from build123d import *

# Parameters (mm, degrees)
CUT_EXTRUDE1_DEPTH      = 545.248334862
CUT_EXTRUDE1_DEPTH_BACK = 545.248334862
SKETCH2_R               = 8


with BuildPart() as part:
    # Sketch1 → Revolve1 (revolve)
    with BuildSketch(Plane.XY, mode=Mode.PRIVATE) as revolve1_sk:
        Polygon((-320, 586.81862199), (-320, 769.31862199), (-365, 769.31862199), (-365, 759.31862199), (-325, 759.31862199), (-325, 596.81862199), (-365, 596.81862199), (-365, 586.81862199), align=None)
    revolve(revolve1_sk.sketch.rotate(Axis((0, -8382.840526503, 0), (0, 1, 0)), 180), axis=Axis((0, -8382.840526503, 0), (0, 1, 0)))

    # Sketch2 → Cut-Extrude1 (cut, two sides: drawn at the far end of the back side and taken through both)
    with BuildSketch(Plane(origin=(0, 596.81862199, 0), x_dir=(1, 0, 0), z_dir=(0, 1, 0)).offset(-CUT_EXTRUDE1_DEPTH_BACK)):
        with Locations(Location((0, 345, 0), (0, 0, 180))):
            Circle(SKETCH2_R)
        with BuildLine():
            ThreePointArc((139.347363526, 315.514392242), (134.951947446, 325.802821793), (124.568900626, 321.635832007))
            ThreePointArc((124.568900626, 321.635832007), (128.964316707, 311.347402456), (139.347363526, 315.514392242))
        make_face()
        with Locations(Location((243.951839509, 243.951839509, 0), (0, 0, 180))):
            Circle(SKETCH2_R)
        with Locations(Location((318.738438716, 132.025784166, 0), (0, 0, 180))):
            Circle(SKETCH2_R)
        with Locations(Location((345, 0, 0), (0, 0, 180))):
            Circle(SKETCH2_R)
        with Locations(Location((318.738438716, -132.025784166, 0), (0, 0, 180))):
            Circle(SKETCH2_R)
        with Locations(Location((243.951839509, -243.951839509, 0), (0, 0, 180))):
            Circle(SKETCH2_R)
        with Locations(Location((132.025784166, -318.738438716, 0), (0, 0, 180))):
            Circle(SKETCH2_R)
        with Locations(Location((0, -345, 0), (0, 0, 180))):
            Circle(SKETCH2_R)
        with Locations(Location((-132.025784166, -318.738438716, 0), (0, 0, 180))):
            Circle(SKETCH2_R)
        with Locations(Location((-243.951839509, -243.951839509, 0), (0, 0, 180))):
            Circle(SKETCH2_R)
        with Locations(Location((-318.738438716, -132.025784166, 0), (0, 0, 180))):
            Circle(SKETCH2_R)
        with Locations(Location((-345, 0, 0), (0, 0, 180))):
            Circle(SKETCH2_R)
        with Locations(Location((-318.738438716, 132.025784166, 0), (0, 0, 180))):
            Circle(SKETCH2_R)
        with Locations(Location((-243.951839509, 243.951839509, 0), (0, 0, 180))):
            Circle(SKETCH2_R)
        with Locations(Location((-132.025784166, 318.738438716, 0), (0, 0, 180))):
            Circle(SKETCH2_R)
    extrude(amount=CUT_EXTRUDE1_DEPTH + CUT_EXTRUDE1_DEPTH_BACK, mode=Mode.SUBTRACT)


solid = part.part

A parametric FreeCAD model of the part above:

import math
import FreeCAD as App
import Part
import Sketcher

V = App.Vector

doc = App.newDocument("Part")
body = doc.addObject("PartDesign::Body", "Body")

# Sketch on XY plane
sketch1 = doc.addObject("Sketcher::SketchObject", "Sketch")
body.addObject(sketch1)
sketch1.AttachmentSupport = (doc.XY_Plane, [""])
sketch1.MapMode = "FlatFace"
sketch1.addGeometry([
    Part.LineSegment(V(-320, 586.818622, 0), V(-320, 769.318622, 0)),  # 0
    Part.LineSegment(V(-320, 769.318622, 0), V(-365, 769.318622, 0)),  # 1
    Part.LineSegment(V(-365, 769.318622, 0), V(-365, 759.318622, 0)),  # 2
    Part.LineSegment(V(-365, 759.318622, 0), V(-325, 759.318622, 0)),  # 3
    Part.LineSegment(V(-325, 759.318622, 0), V(-325, 596.818622, 0)),  # 4
    Part.LineSegment(V(-325, 596.818622, 0), V(-365, 596.818622, 0)),  # 5
    Part.LineSegment(V(-365, 596.818622, 0), V(-365, 586.818622, 0)),  # 6
    Part.LineSegment(V(-365, 586.818622, 0), V(-320, 586.818622, 0)),  # 7
], False)
sketch1.addConstraint([
    Sketcher.Constraint("Coincident", 0, 2, 1, 1),
    Sketcher.Constraint("Coincident", 1, 2, 2, 1),
    Sketcher.Constraint("Coincident", 2, 2, 3, 1),
    Sketcher.Constraint("Coincident", 3, 2, 4, 1),
    Sketcher.Constraint("Coincident", 4, 2, 5, 1),
    Sketcher.Constraint("Coincident", 5, 2, 6, 1),
    Sketcher.Constraint("Coincident", 6, 2, 7, 1),
    Sketcher.Constraint("Coincident", 7, 2, 0, 1),
    Sketcher.Constraint("Vertical", 0),
    Sketcher.Constraint("Horizontal", 1),
    Sketcher.Constraint("Vertical", 2),
    Sketcher.Constraint("Horizontal", 3),
    Sketcher.Constraint("Vertical", 4),
    Sketcher.Constraint("Horizontal", 5),
    Sketcher.Constraint("Vertical", 6),
    Sketcher.Constraint("Horizontal", 7),
    Sketcher.Constraint("Vertical", 2, 2, 5, 2),
    Sketcher.Constraint("Equal", 2, 6),
    Sketcher.Constraint("DistanceX", 1, 2, 1, 1, 45.0),
    Sketcher.Constraint("DistanceX", 3, 1, 3, 2, 40.0),
    Sketcher.Constraint("DistanceY", 2, 2, 2, 1, 10.0),
    Sketcher.Constraint("DistanceY", 0, 1, 0, 2, 182.5),
    Sketcher.Constraint("DistanceX", 0, 2, -1, 1, 320.0),
    Sketcher.Constraint("DistanceY", -1, 1, 0, 2, 769.318622),
])
revolution = doc.addObject("PartDesign::Revolution", "Revolution")
body.addObject(revolution)
revolution.Profile = sketch1
revolution.ReferenceAxis = (sketch1, ["V_Axis"])
revolution.Angle = 360

# Sketch on XZ plane
sketch2 = doc.addObject("Sketcher::SketchObject", "Sketch001")
body.addObject(sketch2)
sketch2.AttachmentSupport = (doc.XZ_Plane, [""])
sketch2.MapMode = "FlatFace"
sketch2.AttachmentOffset = App.Placement(V(0, 0, -596.818622), App.Rotation())
sketch2.addGeometry([
    Part.Circle(V(0, -345, 0), V(0, 0, 1), 8),  # 0
    Part.ArcOfCircle(Part.Circle(V(131.89048, -318.411786, 0), V(0, 0, 1), 8), math.radians(-156.233779), math.radians(21.233779)),  # 1
    Part.ArcOfCircle(Part.Circle(V(132.025784, -318.738439, 0), V(0, 0, 1), 8), math.radians(23.766221), math.radians(201.233779)),  # 2
    Part.Circle(V(243.95184, -243.95184, 0), V(0, 0, 1), 8),  # 3
    Part.Circle(V(318.738439, -132.025784, 0), V(0, 0, 1), 8),  # 4
    Part.Circle(V(345, 0, 0), V(0, 0, 1), 8),  # 5
    Part.Circle(V(318.738439, 132.025784, 0), V(0, 0, 1), 8),  # 6
    Part.Circle(V(243.95184, 243.95184, 0), V(0, 0, 1), 8),  # 7
    Part.Circle(V(132.025784, 318.738439, 0), V(0, 0, 1), 8),  # 8
    Part.Circle(V(0, 345, 0), V(0, 0, 1), 8),  # 9
    Part.Circle(V(-132.025784, 318.738439, 0), V(0, 0, 1), 8),  # 10
    Part.Circle(V(-243.95184, 243.95184, 0), V(0, 0, 1), 8),  # 11
    Part.Circle(V(-318.738439, 132.025784, 0), V(0, 0, 1), 8),  # 12
    Part.Circle(V(-345, 0, 0), V(0, 0, 1), 8),  # 13
    Part.Circle(V(-318.738439, -132.025784, 0), V(0, 0, 1), 8),  # 14
    Part.Circle(V(-243.95184, -243.95184, 0), V(0, 0, 1), 8),  # 15
    Part.Circle(V(-132.025784, -318.738439, 0), V(0, 0, 1), 8),  # 16
], False)
sketch2.addConstraint([
    Sketcher.Constraint("Coincident", 1, 1, 2, 2),
    Sketcher.Constraint("Coincident", 2, 1, 1, 2),
    Sketcher.Constraint("Equal", 0, 1),
    Sketcher.Constraint("Equal", 1, 2),
    Sketcher.Constraint("Equal", 2, 3),
    Sketcher.Constraint("Equal", 3, 4),
    Sketcher.Constraint("Equal", 4, 5),
    Sketcher.Constraint("Equal", 5, 6),
    Sketcher.Constraint("Equal", 6, 7),
    Sketcher.Constraint("Equal", 7, 8),
    Sketcher.Constraint("Equal", 8, 9),
    Sketcher.Constraint("Equal", 9, 10),
    Sketcher.Constraint("Equal", 10, 11),
    Sketcher.Constraint("Equal", 11, 12),
    Sketcher.Constraint("Equal", 12, 13),
    Sketcher.Constraint("Equal", 13, 14),
    Sketcher.Constraint("Equal", 14, 15),
    Sketcher.Constraint("Equal", 15, 16),
    Sketcher.Constraint("Symmetric", 0, 3, 9, 3, -1, 1),
    Sketcher.Constraint("Symmetric", 2, 3, 10, 3, -1, 1),
    Sketcher.Constraint("Symmetric", 3, 3, 11, 3, -1, 1),
    Sketcher.Constraint("Symmetric", 4, 3, 12, 3, -1, 1),
    Sketcher.Constraint("Symmetric", 5, 3, 13, 3, -1, 1),
    Sketcher.Constraint("Symmetric", 6, 3, 14, 3, -1, 1),
    Sketcher.Constraint("Symmetric", 7, 3, 15, 3, -1, 1),
    Sketcher.Constraint("Symmetric", 8, 3, 16, 3, -1, 1),
    Sketcher.Constraint("Symmetric", 8, 3, 10, 3, -2),
    Sketcher.Constraint("Symmetric", 7, 3, 11, 3, -2),
    Sketcher.Constraint("Symmetric", 6, 3, 12, 3, -2),
    Sketcher.Constraint("PointOnObject", 0, 3, -2),
    Sketcher.Constraint("PointOnObject", 5, 3, -1),
    Sketcher.Constraint("Diameter", 0, 16.0),
    Sketcher.Constraint("DistanceY", 0, 3, -1, 1, 345.0),
    Sketcher.Constraint("DistanceX", -1, 1, 5, 3, 345.0),
    Sketcher.Constraint("DistanceY", 1, 3, 4, 3, 186.386001),
    Sketcher.Constraint("DistanceX", -1, 1, 1, 1, 124.568901),
    Sketcher.Constraint("DistanceY", 2, 3, 3, 3, 74.786599),
    Sketcher.Constraint("DistanceX", 3, 3, 4, 3, 74.786599),
    Sketcher.Constraint("DistanceX", -1, 1, 1, 3, 131.89048),
    Sketcher.Constraint("DistanceY", 2, 3, -1, 1, 318.738439),
    Sketcher.Constraint("DistanceX", -1, 1, 3, 3, 243.95184),
    Sketcher.Constraint("DistanceY", 4, 3, 6, 3, 264.051568),
])
pocket1 = doc.addObject("PartDesign::Pocket", "Pocket")
body.addObject(pocket1)
pocket1.Profile = sketch2
pocket1.Type = "ThroughAll"
pocket1.Midplane = True

doc.recompute()
